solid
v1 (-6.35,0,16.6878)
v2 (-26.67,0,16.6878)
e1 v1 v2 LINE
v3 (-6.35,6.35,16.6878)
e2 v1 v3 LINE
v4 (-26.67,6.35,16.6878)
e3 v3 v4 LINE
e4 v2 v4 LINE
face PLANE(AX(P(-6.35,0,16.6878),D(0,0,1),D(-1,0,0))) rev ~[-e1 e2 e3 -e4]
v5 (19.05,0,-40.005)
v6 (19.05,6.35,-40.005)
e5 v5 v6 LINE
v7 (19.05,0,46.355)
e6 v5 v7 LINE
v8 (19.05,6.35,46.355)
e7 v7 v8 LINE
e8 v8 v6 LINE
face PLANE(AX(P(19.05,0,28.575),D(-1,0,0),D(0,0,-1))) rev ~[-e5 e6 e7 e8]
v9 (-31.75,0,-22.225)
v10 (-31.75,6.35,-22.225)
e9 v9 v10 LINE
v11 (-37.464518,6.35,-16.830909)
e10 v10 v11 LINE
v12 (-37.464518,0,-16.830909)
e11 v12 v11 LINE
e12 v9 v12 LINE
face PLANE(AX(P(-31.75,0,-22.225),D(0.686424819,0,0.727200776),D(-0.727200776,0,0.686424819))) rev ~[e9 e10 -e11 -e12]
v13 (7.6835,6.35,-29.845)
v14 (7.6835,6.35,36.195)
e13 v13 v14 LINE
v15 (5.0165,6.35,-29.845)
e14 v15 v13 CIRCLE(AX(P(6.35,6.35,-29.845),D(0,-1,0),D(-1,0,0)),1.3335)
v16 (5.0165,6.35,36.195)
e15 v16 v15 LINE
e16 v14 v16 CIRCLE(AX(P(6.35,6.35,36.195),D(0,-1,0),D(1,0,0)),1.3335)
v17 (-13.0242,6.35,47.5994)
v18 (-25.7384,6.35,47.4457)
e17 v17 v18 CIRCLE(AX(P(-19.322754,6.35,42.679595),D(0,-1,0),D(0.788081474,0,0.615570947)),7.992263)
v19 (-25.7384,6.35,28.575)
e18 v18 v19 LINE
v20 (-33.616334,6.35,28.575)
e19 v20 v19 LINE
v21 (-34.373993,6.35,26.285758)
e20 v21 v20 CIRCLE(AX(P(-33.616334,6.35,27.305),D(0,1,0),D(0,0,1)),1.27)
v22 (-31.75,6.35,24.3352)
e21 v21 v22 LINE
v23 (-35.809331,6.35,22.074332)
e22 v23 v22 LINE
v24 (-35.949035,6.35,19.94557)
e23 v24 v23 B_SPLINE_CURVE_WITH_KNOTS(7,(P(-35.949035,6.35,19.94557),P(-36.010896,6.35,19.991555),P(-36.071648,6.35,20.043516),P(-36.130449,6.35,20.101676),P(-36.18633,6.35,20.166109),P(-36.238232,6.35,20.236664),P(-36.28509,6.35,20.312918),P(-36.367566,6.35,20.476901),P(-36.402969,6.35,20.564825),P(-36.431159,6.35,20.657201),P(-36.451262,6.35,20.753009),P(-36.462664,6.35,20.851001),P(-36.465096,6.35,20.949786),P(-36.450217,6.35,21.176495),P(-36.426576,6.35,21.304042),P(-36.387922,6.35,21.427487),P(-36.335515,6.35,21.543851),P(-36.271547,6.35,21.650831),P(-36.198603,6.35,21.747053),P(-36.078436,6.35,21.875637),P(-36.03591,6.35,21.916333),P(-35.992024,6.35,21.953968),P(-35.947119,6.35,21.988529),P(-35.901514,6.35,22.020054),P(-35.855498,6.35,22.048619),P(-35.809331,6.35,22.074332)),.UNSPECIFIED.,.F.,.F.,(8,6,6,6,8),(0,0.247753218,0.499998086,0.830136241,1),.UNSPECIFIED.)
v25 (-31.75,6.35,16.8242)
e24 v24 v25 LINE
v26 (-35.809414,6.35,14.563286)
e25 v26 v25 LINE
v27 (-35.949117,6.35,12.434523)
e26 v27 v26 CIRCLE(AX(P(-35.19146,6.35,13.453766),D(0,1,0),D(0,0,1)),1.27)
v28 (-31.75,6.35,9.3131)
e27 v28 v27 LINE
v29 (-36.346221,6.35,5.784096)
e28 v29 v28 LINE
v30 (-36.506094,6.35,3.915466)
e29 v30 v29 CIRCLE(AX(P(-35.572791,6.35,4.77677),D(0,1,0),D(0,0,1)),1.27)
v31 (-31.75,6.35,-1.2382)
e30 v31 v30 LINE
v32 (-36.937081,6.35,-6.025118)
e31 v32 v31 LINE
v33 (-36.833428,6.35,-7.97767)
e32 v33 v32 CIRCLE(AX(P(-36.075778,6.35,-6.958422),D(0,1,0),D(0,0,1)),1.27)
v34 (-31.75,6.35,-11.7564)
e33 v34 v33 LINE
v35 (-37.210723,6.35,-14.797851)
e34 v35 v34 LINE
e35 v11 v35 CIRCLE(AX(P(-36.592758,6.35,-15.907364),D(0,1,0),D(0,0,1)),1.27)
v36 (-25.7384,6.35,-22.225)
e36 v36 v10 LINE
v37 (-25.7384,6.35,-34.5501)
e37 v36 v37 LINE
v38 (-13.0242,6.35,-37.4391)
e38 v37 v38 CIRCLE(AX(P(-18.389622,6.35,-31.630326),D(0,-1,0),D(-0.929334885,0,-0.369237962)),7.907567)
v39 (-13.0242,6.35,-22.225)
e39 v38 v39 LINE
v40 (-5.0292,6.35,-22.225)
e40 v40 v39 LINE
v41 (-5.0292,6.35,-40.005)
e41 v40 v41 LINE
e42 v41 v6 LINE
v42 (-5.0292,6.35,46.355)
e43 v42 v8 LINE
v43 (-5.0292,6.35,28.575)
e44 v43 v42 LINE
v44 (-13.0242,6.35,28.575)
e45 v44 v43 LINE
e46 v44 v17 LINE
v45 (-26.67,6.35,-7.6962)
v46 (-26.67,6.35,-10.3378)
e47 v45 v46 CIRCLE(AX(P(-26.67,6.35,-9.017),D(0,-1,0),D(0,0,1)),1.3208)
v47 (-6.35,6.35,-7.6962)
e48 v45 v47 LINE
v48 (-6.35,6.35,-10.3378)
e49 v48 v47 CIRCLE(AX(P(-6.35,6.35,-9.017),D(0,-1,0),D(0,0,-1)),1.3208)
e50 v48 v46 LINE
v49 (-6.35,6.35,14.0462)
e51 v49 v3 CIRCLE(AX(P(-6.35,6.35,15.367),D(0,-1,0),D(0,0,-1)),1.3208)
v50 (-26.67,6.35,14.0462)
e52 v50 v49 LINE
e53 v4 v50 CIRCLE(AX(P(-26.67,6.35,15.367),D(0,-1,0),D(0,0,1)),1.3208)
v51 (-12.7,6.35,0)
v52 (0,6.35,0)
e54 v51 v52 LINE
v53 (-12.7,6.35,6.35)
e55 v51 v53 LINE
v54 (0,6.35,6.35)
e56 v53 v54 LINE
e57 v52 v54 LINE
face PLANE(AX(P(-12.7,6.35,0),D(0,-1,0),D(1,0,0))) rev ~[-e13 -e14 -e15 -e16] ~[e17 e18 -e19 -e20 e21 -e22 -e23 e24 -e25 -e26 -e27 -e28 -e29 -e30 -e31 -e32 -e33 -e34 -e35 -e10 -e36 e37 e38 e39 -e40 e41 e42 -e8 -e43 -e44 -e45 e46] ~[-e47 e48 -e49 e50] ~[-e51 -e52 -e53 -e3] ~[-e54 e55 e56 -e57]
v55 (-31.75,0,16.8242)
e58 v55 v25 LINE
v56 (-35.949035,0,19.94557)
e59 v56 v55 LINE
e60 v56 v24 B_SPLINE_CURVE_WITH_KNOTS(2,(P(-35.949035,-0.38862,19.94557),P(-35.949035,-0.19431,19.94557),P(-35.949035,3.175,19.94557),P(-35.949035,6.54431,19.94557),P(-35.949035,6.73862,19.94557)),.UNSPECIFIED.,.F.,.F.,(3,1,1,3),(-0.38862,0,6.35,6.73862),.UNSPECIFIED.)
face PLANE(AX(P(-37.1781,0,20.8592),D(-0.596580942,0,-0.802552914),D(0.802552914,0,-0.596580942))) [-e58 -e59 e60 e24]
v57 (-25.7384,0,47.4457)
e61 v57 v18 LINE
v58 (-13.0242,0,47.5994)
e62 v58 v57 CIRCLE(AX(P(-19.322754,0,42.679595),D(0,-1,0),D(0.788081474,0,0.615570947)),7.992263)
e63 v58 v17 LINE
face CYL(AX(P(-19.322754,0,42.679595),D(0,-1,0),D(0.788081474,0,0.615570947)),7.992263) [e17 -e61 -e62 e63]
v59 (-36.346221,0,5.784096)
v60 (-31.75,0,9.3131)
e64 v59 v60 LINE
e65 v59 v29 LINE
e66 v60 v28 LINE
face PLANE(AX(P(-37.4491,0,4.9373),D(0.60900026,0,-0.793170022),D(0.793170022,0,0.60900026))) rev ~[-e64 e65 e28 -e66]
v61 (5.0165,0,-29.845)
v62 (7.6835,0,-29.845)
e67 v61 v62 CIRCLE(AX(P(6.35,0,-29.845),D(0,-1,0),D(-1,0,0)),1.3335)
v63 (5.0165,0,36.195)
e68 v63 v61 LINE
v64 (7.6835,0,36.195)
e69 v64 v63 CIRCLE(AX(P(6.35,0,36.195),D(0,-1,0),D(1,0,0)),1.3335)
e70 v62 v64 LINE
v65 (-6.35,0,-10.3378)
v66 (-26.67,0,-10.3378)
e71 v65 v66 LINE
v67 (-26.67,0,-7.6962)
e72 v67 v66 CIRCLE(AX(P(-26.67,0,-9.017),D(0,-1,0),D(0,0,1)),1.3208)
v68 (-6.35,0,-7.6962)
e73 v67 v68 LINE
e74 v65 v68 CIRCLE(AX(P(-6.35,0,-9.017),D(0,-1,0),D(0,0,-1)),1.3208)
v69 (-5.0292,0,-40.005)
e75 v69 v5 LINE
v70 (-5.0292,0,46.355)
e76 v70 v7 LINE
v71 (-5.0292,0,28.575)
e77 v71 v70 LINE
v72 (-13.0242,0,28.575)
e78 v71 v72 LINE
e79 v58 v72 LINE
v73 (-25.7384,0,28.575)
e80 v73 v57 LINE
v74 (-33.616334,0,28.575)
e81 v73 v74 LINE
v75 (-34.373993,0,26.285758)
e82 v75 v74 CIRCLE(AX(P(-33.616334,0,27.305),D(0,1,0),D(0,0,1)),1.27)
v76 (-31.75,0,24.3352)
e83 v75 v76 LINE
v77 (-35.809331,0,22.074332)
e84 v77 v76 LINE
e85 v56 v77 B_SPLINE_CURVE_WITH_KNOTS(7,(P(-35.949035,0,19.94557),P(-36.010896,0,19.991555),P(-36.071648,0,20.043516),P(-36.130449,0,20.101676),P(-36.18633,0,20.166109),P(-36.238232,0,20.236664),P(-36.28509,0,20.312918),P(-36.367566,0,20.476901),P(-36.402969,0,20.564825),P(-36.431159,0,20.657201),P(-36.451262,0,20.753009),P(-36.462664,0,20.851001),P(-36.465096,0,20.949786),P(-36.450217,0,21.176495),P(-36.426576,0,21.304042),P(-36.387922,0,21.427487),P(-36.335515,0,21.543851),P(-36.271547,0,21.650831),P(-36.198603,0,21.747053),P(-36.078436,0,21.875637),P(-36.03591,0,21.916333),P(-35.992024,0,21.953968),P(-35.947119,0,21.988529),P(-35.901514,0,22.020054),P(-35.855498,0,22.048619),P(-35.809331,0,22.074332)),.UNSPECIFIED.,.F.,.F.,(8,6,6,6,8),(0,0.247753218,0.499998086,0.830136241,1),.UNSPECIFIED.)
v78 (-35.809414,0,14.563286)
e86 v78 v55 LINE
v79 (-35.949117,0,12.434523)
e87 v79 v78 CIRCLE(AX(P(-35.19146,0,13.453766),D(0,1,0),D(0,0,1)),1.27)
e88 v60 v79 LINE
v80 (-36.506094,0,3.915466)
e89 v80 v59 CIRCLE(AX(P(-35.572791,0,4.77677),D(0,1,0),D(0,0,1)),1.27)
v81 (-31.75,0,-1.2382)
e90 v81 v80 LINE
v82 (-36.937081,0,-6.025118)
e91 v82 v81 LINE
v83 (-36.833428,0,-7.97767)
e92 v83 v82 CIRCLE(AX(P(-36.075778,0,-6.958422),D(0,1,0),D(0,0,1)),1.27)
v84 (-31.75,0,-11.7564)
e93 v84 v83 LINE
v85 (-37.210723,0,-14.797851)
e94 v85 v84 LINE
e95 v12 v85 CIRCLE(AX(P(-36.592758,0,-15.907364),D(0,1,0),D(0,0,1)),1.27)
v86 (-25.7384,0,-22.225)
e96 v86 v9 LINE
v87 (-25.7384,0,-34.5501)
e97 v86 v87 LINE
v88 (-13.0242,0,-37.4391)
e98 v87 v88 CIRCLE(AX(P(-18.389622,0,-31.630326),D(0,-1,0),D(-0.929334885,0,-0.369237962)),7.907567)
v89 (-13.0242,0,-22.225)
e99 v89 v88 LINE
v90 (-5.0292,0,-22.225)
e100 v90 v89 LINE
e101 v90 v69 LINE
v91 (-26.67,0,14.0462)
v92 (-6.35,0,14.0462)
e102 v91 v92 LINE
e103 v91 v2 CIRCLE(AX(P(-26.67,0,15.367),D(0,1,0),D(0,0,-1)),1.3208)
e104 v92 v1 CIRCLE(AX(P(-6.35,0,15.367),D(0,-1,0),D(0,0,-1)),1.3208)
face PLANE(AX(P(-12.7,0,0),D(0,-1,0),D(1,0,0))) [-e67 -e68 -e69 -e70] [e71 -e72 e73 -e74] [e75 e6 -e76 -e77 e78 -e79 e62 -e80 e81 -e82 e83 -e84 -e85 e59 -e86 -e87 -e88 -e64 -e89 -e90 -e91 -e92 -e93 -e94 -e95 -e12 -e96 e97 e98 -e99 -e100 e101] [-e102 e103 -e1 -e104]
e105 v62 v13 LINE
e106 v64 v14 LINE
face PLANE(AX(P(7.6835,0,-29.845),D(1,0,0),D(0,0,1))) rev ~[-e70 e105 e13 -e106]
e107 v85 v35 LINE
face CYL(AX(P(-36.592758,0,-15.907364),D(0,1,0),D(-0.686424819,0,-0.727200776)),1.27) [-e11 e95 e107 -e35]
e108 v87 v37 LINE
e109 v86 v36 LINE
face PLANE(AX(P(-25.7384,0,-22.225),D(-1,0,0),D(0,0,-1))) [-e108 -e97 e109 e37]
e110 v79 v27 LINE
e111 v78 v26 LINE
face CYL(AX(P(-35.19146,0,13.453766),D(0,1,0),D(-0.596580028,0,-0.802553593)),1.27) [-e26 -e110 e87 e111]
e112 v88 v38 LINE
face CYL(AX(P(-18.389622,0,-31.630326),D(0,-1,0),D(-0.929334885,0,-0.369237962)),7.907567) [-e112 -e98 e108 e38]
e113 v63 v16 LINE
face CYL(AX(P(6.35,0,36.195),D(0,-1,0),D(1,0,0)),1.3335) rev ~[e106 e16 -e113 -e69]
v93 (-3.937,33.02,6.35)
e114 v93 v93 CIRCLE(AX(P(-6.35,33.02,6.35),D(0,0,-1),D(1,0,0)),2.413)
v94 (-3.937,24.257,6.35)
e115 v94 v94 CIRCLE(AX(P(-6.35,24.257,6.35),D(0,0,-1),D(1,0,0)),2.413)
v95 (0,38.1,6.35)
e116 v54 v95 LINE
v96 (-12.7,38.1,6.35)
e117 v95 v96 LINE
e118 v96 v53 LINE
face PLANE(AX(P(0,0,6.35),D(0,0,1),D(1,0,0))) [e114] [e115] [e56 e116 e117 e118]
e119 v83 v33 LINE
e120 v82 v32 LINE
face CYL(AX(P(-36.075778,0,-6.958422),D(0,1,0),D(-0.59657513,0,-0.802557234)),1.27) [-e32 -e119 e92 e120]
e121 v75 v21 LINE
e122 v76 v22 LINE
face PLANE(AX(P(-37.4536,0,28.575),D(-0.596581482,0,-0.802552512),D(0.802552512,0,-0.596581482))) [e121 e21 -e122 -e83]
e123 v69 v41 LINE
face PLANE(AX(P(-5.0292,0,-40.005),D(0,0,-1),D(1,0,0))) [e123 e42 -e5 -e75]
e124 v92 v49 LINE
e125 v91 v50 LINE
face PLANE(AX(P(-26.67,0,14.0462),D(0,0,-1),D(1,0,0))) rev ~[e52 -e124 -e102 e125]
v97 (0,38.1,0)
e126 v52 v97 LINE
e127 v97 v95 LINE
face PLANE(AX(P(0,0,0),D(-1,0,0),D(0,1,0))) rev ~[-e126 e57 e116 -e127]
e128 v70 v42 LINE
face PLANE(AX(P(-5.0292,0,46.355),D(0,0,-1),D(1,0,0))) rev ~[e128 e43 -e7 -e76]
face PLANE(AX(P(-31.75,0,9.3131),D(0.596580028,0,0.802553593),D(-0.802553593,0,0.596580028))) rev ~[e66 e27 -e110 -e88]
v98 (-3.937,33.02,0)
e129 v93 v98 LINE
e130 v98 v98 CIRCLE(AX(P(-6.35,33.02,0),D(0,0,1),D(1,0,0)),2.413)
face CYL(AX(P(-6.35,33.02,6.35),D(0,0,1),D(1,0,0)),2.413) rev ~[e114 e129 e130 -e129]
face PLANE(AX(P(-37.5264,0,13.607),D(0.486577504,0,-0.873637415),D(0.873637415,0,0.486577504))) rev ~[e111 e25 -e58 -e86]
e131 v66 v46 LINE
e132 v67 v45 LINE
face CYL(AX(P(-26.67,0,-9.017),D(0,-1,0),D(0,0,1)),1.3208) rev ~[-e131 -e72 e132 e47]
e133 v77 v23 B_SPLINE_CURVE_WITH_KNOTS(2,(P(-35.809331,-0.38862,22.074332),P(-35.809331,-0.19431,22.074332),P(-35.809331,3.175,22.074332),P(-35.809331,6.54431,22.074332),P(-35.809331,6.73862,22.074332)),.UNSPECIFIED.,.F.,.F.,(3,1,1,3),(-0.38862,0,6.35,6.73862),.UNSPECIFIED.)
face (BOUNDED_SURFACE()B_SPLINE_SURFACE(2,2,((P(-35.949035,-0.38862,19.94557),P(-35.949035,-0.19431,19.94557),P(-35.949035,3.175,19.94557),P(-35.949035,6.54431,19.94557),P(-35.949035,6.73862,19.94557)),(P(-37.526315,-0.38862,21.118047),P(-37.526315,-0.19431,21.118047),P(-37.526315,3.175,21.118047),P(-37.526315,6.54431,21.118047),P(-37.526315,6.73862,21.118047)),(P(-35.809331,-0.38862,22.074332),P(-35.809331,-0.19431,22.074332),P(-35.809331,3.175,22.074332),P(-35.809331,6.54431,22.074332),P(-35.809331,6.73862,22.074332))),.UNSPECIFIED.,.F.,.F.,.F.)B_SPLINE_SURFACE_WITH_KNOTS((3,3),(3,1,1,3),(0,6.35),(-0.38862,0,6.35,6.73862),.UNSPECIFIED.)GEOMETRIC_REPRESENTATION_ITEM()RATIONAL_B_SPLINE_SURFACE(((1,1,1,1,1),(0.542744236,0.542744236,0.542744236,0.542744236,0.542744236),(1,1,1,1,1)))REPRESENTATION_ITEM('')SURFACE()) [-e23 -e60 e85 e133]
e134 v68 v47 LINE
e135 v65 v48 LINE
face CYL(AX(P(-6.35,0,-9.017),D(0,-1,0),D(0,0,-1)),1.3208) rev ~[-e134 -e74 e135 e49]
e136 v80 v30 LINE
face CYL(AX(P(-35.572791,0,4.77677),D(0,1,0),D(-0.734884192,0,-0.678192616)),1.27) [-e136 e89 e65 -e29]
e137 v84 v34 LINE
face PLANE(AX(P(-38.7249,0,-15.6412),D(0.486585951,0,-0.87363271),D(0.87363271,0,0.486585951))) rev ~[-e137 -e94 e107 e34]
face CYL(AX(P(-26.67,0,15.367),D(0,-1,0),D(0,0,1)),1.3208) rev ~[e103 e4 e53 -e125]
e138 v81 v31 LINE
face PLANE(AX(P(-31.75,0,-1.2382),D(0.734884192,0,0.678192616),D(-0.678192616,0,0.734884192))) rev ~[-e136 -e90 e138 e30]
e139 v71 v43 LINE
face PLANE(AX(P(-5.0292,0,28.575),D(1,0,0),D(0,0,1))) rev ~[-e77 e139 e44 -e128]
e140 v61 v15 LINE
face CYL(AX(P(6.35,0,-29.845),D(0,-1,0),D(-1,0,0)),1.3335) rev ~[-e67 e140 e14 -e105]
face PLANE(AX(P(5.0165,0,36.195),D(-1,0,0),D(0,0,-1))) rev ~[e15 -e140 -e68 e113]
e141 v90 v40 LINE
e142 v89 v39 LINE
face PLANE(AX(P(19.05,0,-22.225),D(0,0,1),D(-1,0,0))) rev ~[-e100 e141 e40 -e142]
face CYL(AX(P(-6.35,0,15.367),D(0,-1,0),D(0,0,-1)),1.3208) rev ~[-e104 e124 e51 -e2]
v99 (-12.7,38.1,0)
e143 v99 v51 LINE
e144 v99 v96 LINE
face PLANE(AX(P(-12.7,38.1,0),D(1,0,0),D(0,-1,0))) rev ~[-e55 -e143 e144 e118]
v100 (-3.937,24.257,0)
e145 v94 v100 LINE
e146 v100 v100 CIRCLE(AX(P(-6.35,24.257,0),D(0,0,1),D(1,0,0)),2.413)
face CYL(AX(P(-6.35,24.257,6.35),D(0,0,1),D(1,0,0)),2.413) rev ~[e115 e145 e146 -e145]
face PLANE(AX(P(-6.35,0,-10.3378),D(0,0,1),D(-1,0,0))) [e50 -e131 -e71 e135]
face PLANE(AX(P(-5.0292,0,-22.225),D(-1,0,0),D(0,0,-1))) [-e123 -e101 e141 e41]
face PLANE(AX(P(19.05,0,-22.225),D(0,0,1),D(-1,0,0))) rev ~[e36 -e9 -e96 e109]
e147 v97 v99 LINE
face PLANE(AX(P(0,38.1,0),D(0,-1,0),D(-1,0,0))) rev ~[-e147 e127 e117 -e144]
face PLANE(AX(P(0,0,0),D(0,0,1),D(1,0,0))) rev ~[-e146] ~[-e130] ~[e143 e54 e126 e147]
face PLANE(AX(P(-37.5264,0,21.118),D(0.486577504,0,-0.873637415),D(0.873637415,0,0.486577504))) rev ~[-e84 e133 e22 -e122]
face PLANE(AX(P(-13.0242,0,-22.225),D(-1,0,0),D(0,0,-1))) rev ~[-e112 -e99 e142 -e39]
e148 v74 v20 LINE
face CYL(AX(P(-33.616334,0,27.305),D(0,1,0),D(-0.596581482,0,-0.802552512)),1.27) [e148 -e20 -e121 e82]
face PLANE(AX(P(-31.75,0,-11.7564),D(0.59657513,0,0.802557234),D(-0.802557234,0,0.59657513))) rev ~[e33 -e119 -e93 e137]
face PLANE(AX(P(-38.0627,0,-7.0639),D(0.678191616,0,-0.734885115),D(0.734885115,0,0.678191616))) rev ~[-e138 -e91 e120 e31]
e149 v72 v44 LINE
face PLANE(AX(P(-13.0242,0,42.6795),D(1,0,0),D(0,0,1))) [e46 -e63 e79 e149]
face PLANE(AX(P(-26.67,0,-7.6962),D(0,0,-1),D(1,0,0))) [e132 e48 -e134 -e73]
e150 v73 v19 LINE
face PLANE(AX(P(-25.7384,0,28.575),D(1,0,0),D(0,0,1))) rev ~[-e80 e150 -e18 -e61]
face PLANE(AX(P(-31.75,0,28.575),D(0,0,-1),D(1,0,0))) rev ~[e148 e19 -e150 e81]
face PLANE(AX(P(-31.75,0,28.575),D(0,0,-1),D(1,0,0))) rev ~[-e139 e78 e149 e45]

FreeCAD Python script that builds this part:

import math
import FreeCAD as App
import Part
import Sketcher
Q = App.Units.Quantity


def edges_at(feature, points):
    """Names of the edges that pass closest to the given points."""
    edges = feature.Shape.Edges
    near = lambda p: min(range(len(edges)), key=lambda i: edges[i].distToShape(Part.Vertex(*p))[0])
    return sorted({f"Edge{near(p) + 1}" for p in points})

doc = App.newDocument("Part")
body = doc.addObject("PartDesign::Body", "Body")

# Sketch on XY plane
sketch1 = doc.addObject("Sketcher::SketchObject", "Sketch")
body.addObject(sketch1)
sketch1.AttachmentSupport = (doc.XY_Plane, [""])
sketch1.MapMode = "FlatFace"
sketch1.addGeometry([
    Part.LineSegment(App.Vector(-13, 0, 0), App.Vector(0, 0, 0)),
    Part.LineSegment(App.Vector(0, 0, 0), App.Vector(0, 38, 0)),
    Part.LineSegment(App.Vector(0, 38, 0), App.Vector(-13, 38, 0)),
    Part.LineSegment(App.Vector(-13, 38, 0), App.Vector(-13, 0, 0)),
], False)
sketch1.addConstraint([
    Sketcher.Constraint("Coincident", 0, 2, 1, 1),
    Sketcher.Constraint("Coincident", 1, 2, 2, 1),
    Sketcher.Constraint("Coincident", 2, 2, 3, 1),
    Sketcher.Constraint("Coincident", 3, 2, 0, 1),
    Sketcher.Constraint("Horizontal", 0),
    Sketcher.Constraint("Vertical", 1),
    Sketcher.Constraint("Horizontal", 2),
    Sketcher.Constraint("Vertical", 3),
    Sketcher.Constraint("Coincident", 0, 2, -1, 1),
    Sketcher.Constraint("DistanceX", 0, 1, 0, 2, Q("0.5 in")),
    Sketcher.Constraint("DistanceY", 1, 1, 1, 2, Q("1.5 in")),
])
pad1 = doc.addObject("PartDesign::Pad", "Pad")
body.addObject(pad1)
pad1.Profile = sketch1
pad1.Length = Q("0.25 in")

# Sketch on XY plane
sketch2 = doc.addObject("Sketcher::SketchObject", "Sketch001")
body.addObject(sketch2)
sketch2.AttachmentSupport = (doc.XY_Plane, [""])
sketch2.MapMode = "FlatFace"
sketch2.AttachmentOffset = App.Placement(App.Vector(0, 0, 0.25 * 25.4), App.Rotation())
sketch2.addGeometry([
    Part.Circle(App.Vector(-6.3, 24.3, 0), App.Vector(0, 0, 1), 2.4),
    Part.Circle(App.Vector(-6.3, 33, 0), App.Vector(0, 0, 1), 2.4),
], False)
sketch2.addConstraint([
    Sketcher.Constraint("Equal", 0, 1),
    Sketcher.Constraint("Vertical", 0, 3, 1, 3),
    Sketcher.Constraint("Diameter", 0, Q("0.19 in")),
    Sketcher.Constraint("DistanceY", 0, 3, 1, 3, Q("0.345 in")),
    Sketcher.Constraint("DistanceY", -1, 1, 1, 3, Q("1.3 in")),
    Sketcher.Constraint("DistanceX", 0, 3, -1, 1, Q("0.25 in")),
])
pocket1 = doc.addObject("PartDesign::Pocket", "Pocket")
body.addObject(pocket1)
pocket1.Profile = sketch2
pocket1.Type = "UpToFirst"

# Sketch on XZ plane
sketch3 = doc.addObject("Sketcher::SketchObject", "Sketch002")
body.addObject(sketch3)
sketch3.AttachmentSupport = (doc.XZ_Plane, [""])
sketch3.MapMode = "FlatFace"
sketch3.addGeometry([
    Part.LineSegment(App.Vector(-32, 29, 0), App.Vector(-32, -22, 0)),  # 0
    Part.LineSegment(App.Vector(-32, -22, 0), App.Vector(19, -22, 0)),  # 1
    Part.LineSegment(App.Vector(19, -22, 0), App.Vector(19, 29, 0)),  # 2
    Part.LineSegment(App.Vector(19, 29, 0), App.Vector(-32, 29, 0)),  # 3
    Part.LineSegment(App.Vector(0, 0, 0), App.Vector(-13, 0, 0)),  # 4
    Part.LineSegment(App.Vector(-13, 0, 0), App.Vector(-13, 6, 0)),  # 5
    Part.LineSegment(App.Vector(-13, 6, 0), App.Vector(0, 6, 0)),  # 6
    Part.LineSegment(App.Vector(0, 6, 0), App.Vector(0, 0, 0)),  # 7
], False)
sketch3.addConstraint([
    Sketcher.Constraint("Coincident", 0, 2, 1, 1),
    Sketcher.Constraint("Coincident", 1, 2, 2, 1),
    Sketcher.Constraint("Coincident", 2, 2, 3, 1),
    Sketcher.Constraint("Coincident", 3, 2, 0, 1),
    Sketcher.Constraint("Coincident", 4, 2, 5, 1),
    Sketcher.Constraint("Coincident", 5, 2, 6, 1),
    Sketcher.Constraint("Coincident", 6, 2, 7, 1),
    Sketcher.Constraint("Coincident", 7, 2, 4, 1),
    Sketcher.Constraint("Vertical", 0),
    Sketcher.Constraint("Horizontal", 1),
    Sketcher.Constraint("Vertical", 2),
    Sketcher.Constraint("Horizontal", 3),
    Sketcher.Constraint("Horizontal", 4),
    Sketcher.Constraint("Vertical", 5),
    Sketcher.Constraint("Horizontal", 6),
    Sketcher.Constraint("Vertical", 7),
    Sketcher.Constraint("Coincident", 7, 2, -1, 1),
    Sketcher.Constraint("Equal", 3, 0),
    Sketcher.Constraint("DistanceX", 1, 1, 1, 2, Q("2 in")),
    Sketcher.Constraint("DistanceX", 4, 2, 4, 1, Q("0.5 in")),
    Sketcher.Constraint("DistanceY", 5, 1, 5, 2, Q("0.25 in")),
    Sketcher.Constraint("DistanceX", 0, 2, -1, 1, Q("1.25 in")),
    Sketcher.Constraint("DistanceY", 0, 2, -1, 1, Q("0.875 in")),
])
pad2 = doc.addObject("PartDesign::Pad", "Pad001")
body.addObject(pad2)
pad2.Profile = sketch3
pad2.Length = Q("0.25 in")
pad2.Reversed = True

# Sketch on XZ plane
sketch4 = doc.addObject("Sketcher::SketchObject", "Sketch003")
body.addObject(sketch4)
sketch4.AttachmentSupport = (doc.XZ_Plane, [""])
sketch4.MapMode = "FlatFace"
sketch4.addGeometry([
    Part.ArcOfCircle(Part.Circle(App.Vector(-26.7, 15.4, 0), App.Vector(0, 0, 1), 1.3), math.radians(90), math.radians(270)),  # 0
    Part.LineSegment(App.Vector(-26.7, 14, 0), App.Vector(-6.3, 14, 0)),  # 1
    Part.ArcOfCircle(Part.Circle(App.Vector(-6.3, 15.4, 0), App.Vector(0, 0, 1), 1.3), math.radians(-90), math.radians(90)),  # 2
    Part.LineSegment(App.Vector(-6.3, 16.7, 0), App.Vector(-26.7, 16.7, 0)),  # 3
    Part.LineSegment(App.Vector(-6.3, -7.7, 0), App.Vector(-26.7, -7.7, 0)),  # 4
    Part.ArcOfCircle(Part.Circle(App.Vector(-26.7, -9, 0), App.Vector(0, 0, 1), 1.3), math.radians(90), math.radians(270)),  # 5
    Part.LineSegment(App.Vector(-26.7, -10.3, 0), App.Vector(-6.3, -10.3, 0)),  # 6
    Part.ArcOfCircle(Part.Circle(App.Vector(-6.3, -9, 0), App.Vector(0, 0, 1), 1.3), math.radians(-90), math.radians(90)),  # 7
], False)
sketch4.addConstraint([
    Sketcher.Constraint("Tangent", 0, 2, 1, 1),
    Sketcher.Constraint("Tangent", 1, 2, 2, 1),
    Sketcher.Constraint("Tangent", 2, 2, 3, 1),
    Sketcher.Constraint("Tangent", 3, 2, 0, 1),
    Sketcher.Constraint("Tangent", 4, 2, 5, 1),
    Sketcher.Constraint("Tangent", 5, 2, 6, 1),
    Sketcher.Constraint("Tangent", 6, 2, 7, 1),
    Sketcher.Constraint("Tangent", 7, 2, 4, 1),
    Sketcher.Constraint("Horizontal", 1),
    Sketcher.Constraint("Horizontal", 3),
    Sketcher.Constraint("Horizontal", 4),
    Sketcher.Constraint("Horizontal", 6),
    Sketcher.Constraint("Equal", 2, 5),
    Sketcher.Constraint("Vertical", 0, 3, 5, 3),
    Sketcher.Constraint("Vertical", 2, 3, 7, 3),
    Sketcher.Constraint("DistanceX", 1, 1, 1, 2, Q("0.8 in")),
    Sketcher.Constraint("Radius", 0, Q("0.052 in")),
    Sketcher.Constraint("DistanceX", 0, 3, -1, 1, Q("1.05 in")),
    Sketcher.Constraint("DistanceY", 5, 3, 0, 3, Q("0.96 in")),
    Sketcher.Constraint("DistanceY", -1, 1, 0, 3, Q("0.605 in")),
])
pocket2 = doc.addObject("PartDesign::Pocket", "Pocket001")
body.addObject(pocket2)
pocket2.Profile = sketch4
pocket2.Length = Q("0.25 in")

# Sketch on XZ plane
sketch5 = doc.addObject("Sketcher::SketchObject", "Sketch004")
body.addObject(sketch5)
sketch5.AttachmentSupport = (doc.XZ_Plane, [""])
sketch5.MapMode = "FlatFace"
sketch5.addGeometry([
    Part.LineSegment(App.Vector(-5, 46, 0), App.Vector(-5, 29, 0)),  # 0
    Part.LineSegment(App.Vector(-5, 29, 0), App.Vector(19, 29, 0)),  # 1
    Part.LineSegment(App.Vector(19, 29, 0), App.Vector(19, 46, 0)),  # 2
    Part.LineSegment(App.Vector(19, 46, 0), App.Vector(-5, 46, 0)),  # 3
    Part.LineSegment(App.Vector(19, -22, 0), App.Vector(-5, -22, 0)),  # 4
    Part.LineSegment(App.Vector(-5, -22, 0), App.Vector(-5, -40, 0)),  # 5
    Part.LineSegment(App.Vector(-5, -40, 0), App.Vector(19, -40, 0)),  # 6
    Part.LineSegment(App.Vector(19, -40, 0), App.Vector(19, -22, 0)),  # 7
], False)
sketch5.addConstraint([
    Sketcher.Constraint("Coincident", 0, 2, 1, 1),
    Sketcher.Constraint("Coincident", 1, 2, 2, 1),
    Sketcher.Constraint("Coincident", 2, 2, 3, 1),
    Sketcher.Constraint("Coincident", 3, 2, 0, 1),
    Sketcher.Constraint("Coincident", 4, 2, 5, 1),
    Sketcher.Constraint("Coincident", 5, 2, 6, 1),
    Sketcher.Constraint("Coincident", 6, 2, 7, 1),
    Sketcher.Constraint("Coincident", 7, 2, 4, 1),
    Sketcher.Constraint("Vertical", 0),
    Sketcher.Constraint("Horizontal", 1),
    Sketcher.Constraint("Vertical", 2),
    Sketcher.Constraint("Horizontal", 3),
    Sketcher.Constraint("Horizontal", 4),
    Sketcher.Constraint("Vertical", 5),
    Sketcher.Constraint("Horizontal", 6),
    Sketcher.Constraint("Vertical", 7),
    Sketcher.Constraint("Vertical", 3, 2, 4, 2),
    Sketcher.Constraint("Vertical", 2, 2, 6, 2),
    Sketcher.Constraint("Equal", 2, 5),
    Sketcher.Constraint("DistanceY", 0, 2, 0, 1, Q("0.7 in")),
    Sketcher.Constraint("DistanceY", 4, 2, 0, 2, Q("2 in")),
    Sketcher.Constraint("DistanceX", 1, 1, 1, 2, Q("0.948 in")),
    Sketcher.Constraint("DistanceX", -1, 1, 1, 2, Q("0.75 in")),
    Sketcher.Constraint("DistanceY", -1, 1, 0, 2, Q("1.125 in")),
])
pad3 = doc.addObject("PartDesign::Pad", "Pad002")
body.addObject(pad3)
pad3.Profile = sketch5
pad3.Length = Q("0.25 in")
pad3.Reversed = True

# Sketch on XZ plane
sketch6 = doc.addObject("Sketcher::SketchObject", "Sketch005")
body.addObject(sketch6)
sketch6.AttachmentSupport = (doc.XZ_Plane, [""])
sketch6.MapMode = "FlatFace"
sketch6.addGeometry([
    Part.ArcOfCircle(Part.Circle(App.Vector(6.3, -29.8, 0), App.Vector(0, 0, 1), 1.3), math.radians(180), math.radians(360)),
    Part.LineSegment(App.Vector(7.7, -29.8, 0), App.Vector(7.7, 36.2, 0)),
    Part.ArcOfCircle(Part.Circle(App.Vector(6.3, 36.2, 0), App.Vector(0, 0, 1), 1.3), math.radians(0), math.radians(180)),
    Part.LineSegment(App.Vector(5, 36.2, 0), App.Vector(5, -29.8, 0)),
], False)
sketch6.addConstraint([
    Sketcher.Constraint("Tangent", 0, 2, 1, 1),
    Sketcher.Constraint("Tangent", 1, 2, 2, 1),
    Sketcher.Constraint("Tangent", 2, 2, 3, 1),
    Sketcher.Constraint("Tangent", 3, 2, 0, 1),
    Sketcher.Constraint("Vertical", 1),
    Sketcher.Constraint("Vertical", 3),
    Sketcher.Constraint("Radius", 0, Q("0.0525 in")),
    Sketcher.Constraint("DistanceY", 1, 1, 1, 2, Q("2.6 in")),
    Sketcher.Constraint("DistanceX", -1, 1, 0, 3, Q("0.25 in")),
    Sketcher.Constraint("DistanceY", 0, 3, -1, 1, Q("1.175 in")),
])
pocket3 = doc.addObject("PartDesign::Pocket", "Pocket002")
body.addObject(pocket3)
pocket3.Profile = sketch6
pocket3.Length = Q("0.25 in")

# Sketch on XZ plane
sketch7 = doc.addObject("Sketcher::SketchObject", "Sketch006")
body.addObject(sketch7)
sketch7.AttachmentSupport = (doc.XZ_Plane, [""])
sketch7.MapMode = "FlatFace"
sketch7.addGeometry([
    Part.LineSegment(App.Vector(-38.7249, -15.6412, 0), App.Vector(-31.75, -22.225, 0)),  # 0
    Part.LineSegment(App.Vector(-31.75, -22.225, 0), App.Vector(-31.75, -11.7564, 0)),  # 1
    Part.LineSegment(App.Vector(-31.75, -11.7564, 0), App.Vector(-38.7249, -15.6412, 0)),  # 2
    Part.LineSegment(App.Vector(-37.4536, 28.575, 0), App.Vector(-31.75, 24.3352, 0)),  # 3
    Part.LineSegment(App.Vector(-31.75, 24.3352, 0), App.Vector(-31.75, 28.575, 0)),  # 4
    Part.LineSegment(App.Vector(-31.75, 28.575, 0), App.Vector(-37.4536, 28.575, 0)),  # 5
    Part.LineSegment(App.Vector(-37.1781, 20.8592, 0), App.Vector(-31.75, 16.8242, 0)),  # 6
    Part.LineSegment(App.Vector(-31.75, 16.8242, 0), App.Vector(-31.75, 24.3352, 0)),  # 7
    Part.LineSegment(App.Vector(-31.75, 24.3352, 0), App.Vector(-37.5264, 21.118, 0)),  # 8
    Part.LineSegment(App.Vector(-37.5264, 21.118, 0), App.Vector(-37.17815, 20.859133, 0)),  # 9
    Part.LineSegment(App.Vector(-37.5264, 13.607, 0), App.Vector(-31.75, 9.3131, 0)),  # 10
    Part.LineSegment(App.Vector(-31.75, 9.3131, 0), App.Vector(-31.75, 16.8242, 0)),  # 11
    Part.LineSegment(App.Vector(-31.75, 16.8242, 0), App.Vector(-37.5264, 13.607, 0)),  # 12
    Part.LineSegment(App.Vector(-37.4491, 4.9373, 0), App.Vector(-31.75, -1.2382, 0)),  # 13
    Part.LineSegment(App.Vector(-31.75, -1.2382, 0), App.Vector(-31.75, 9.3131, 0)),  # 14
    Part.LineSegment(App.Vector(-31.75, 9.3131, 0), App.Vector(-37.4491, 4.9373, 0)),  # 15
    Part.LineSegment(App.Vector(-38.0627, -7.0639, 0), App.Vector(-31.75, -11.7564, 0)),  # 16
    Part.LineSegment(App.Vector(-31.75, -11.7564, 0), App.Vector(-31.75, -1.2382, 0)),  # 17
    Part.LineSegment(App.Vector(-31.75, -1.2382, 0), App.Vector(-38.0627, -7.0639, 0)),  # 18
], False)
sketch7.addConstraint([
    Sketcher.Constraint("Coincident", 0, 2, 1, 1),
    Sketcher.Constraint("Coincident", 1, 2, 2, 1),
    Sketcher.Constraint("Coincident", 2, 2, 0, 1),
    Sketcher.Constraint("Coincident", 3, 2, 4, 1),
    Sketcher.Constraint("Coincident", 4, 2, 5, 1),
    Sketcher.Constraint("Coincident", 5, 2, 3, 1),
    Sketcher.Constraint("Coincident", 6, 2, 7, 1),
    Sketcher.Constraint("Coincident", 7, 2, 8, 1),
    Sketcher.Constraint("Coincident", 8, 2, 9, 1),
    Sketcher.Constraint("Coincident", 9, 2, 6, 1),
    Sketcher.Constraint("Coincident", 10, 2, 11, 1),
    Sketcher.Constraint("Coincident", 11, 2, 12, 1),
    Sketcher.Constraint("Coincident", 12, 2, 10, 1),
    Sketcher.Constraint("Coincident", 13, 2, 14, 1),
    Sketcher.Constraint("Coincident", 14, 2, 15, 1),
    Sketcher.Constraint("Coincident", 15, 2, 13, 1),
    Sketcher.Constraint("Coincident", 16, 2, 17, 1),
    Sketcher.Constraint("Coincident", 17, 2, 18, 1),
    Sketcher.Constraint("Coincident", 18, 2, 16, 1),
    Sketcher.Constraint("Vertical", 1),
    Sketcher.Constraint("Vertical", 4),
    Sketcher.Constraint("Horizontal", 5),
    Sketcher.Constraint("Vertical", 7),
    Sketcher.Constraint("Vertical", 11),
    Sketcher.Constraint("Vertical", 14),
    Sketcher.Constraint("Vertical", 17),
    Sketcher.Constraint("Coincident", 7, 2, 3, 2),
    Sketcher.Constraint("Coincident", 11, 2, 6, 2),
    Sketcher.Constraint("Coincident", 14, 2, 10, 2),
    Sketcher.Constraint("Coincident", 16, 2, 1, 2),
    Sketcher.Constraint("Coincident", 17, 2, 13, 2),
    Sketcher.Constraint("DistanceY", 0, 2, 4, 2, Q("2 in")),
    Sketcher.Constraint("DistanceX", 0, 2, -1, 1, Q("1.25 in")),
    Sketcher.Constraint("DistanceY", 7, 1, 7, 2, Q("0.2957 in")),
    Sketcher.Constraint("DistanceY", 14, 1, 14, 2, Q("0.4154 in")),
    Sketcher.Constraint("DistanceY", 17, 1, 17, 2, Q("0.4141 in")),
    Sketcher.Constraint("DistanceY", 0, 2, -1, 1, Q("0.875 in")),
    Sketcher.Constraint("DistanceY", 15, 2, 6, 2, Q("0.468 in")),
    Sketcher.Constraint("Distance", 3, Q("0.2798 in")),
    Sketcher.Constraint("Distance", 8, Q("0.2603 in")),
    Sketcher.Constraint("Distance", 12, Q("0.2603 in")),
    Sketcher.Constraint("Distance", 18, Q("0.3382 in")),
    Sketcher.Constraint("DistanceX", 5, 2, 5, 1, 5.7036),
    Sketcher.Constraint("DistanceY", 1, 1, 1, 2, 10.4686),
    Sketcher.Constraint("DistanceX", 2, 2, -1, 1, Q("1.5246 in")),
    Sketcher.Constraint("DistanceY", 2, 2, -1, 1, Q("0.6158 in")),
    Sketcher.Constraint("DistanceX", 9, 2, -1, 1, Q("1.4637 in")),
    Sketcher.Constraint("DistanceY", -1, 1, 12, 2, Q("0.5357 in")),
    Sketcher.Constraint("DistanceY", 18, 2, -1, 1, Q("0.2781 in")),
    Sketcher.Constraint("DistanceX", 8, 2, 9, 2, Q("0.0137 in")),
    Sketcher.Constraint("DistanceY", 9, 2, 8, 2, Q("0.0102 in")),
    Sketcher.Constraint("Distance", 13, 8.4034),
])
pad4 = doc.addObject("PartDesign::Pad", "Pad003")
body.addObject(pad4)
pad4.Profile = sketch7
pad4.Length = Q("0.25 in")
pad4.Reversed = True
doc.recompute()

fillet = doc.addObject("PartDesign::Fillet", "Fillet")
body.addObject(fillet)
fillet.Base = (pad4, edges_at(pad4, [(-38.725, 3.175, -15.641)]))
fillet.Radius = Q("0.05 in")
doc.recompute()

fillet2 = doc.addObject("PartDesign::Fillet", "Fillet001")
body.addObject(fillet2)
fillet2.Base = (fillet, edges_at(fillet, [(-38.063, 3.175, -7.064)]))
fillet2.Radius = Q("0.05 in")
doc.recompute()

fillet3 = doc.addObject("PartDesign::Fillet", "Fillet002")
body.addObject(fillet3)
fillet3.Base = (fillet2, edges_at(fillet2, [
    (-37.449, 3.175, 4.937),
    (-37.526, 3.175, 13.607),
    (-37.526, 3.175, 21.118),
    (-37.454, 3.175, 28.575),
]))
fillet3.Radius = Q("0.05 in")

# Sketch on XZ plane
sketch8 = doc.addObject("Sketcher::SketchObject", "Sketch007")
body.addObject(sketch8)
sketch8.AttachmentSupport = (doc.XZ_Plane, [""])
sketch8.MapMode = "FlatFace"
sketch8.addGeometry([
    Part.LineSegment(App.Vector(-13, -22, 0), App.Vector(-26, -22, 0)),  # 0
    Part.LineSegment(App.Vector(-26, -22, 0), App.Vector(-26, -35, 0)),  # 1
    Part.ArcOfCircle(Part.Circle(App.Vector(-18, -32, 0), App.Vector(0, 0, 1), 8), math.radians(-158), math.radians(-47)),  # 2
    Part.LineSegment(App.Vector(-13, -37, 0), App.Vector(-13, -22, 0)),  # 3
    Part.LineSegment(App.Vector(-26, 47, 0), App.Vector(-26, 29, 0)),  # 4
    Part.LineSegment(App.Vector(-26, 29, 0), App.Vector(-13, 29, 0)),  # 5
    Part.LineSegment(App.Vector(-13, 29, 0), App.Vector(-13, 48, 0)),  # 6
    Part.ArcOfCircle(Part.Circle(App.Vector(-19, 43, 0), App.Vector(0, 0, 1), 8), math.radians(38), math.radians(143)),  # 7
], False)
sketch8.addConstraint([
    Sketcher.Constraint("Coincident", 0, 2, 1, 1),
    Sketcher.Constraint("Coincident", 1, 2, 2, 1),
    Sketcher.Constraint("Coincident", 2, 2, 3, 1),
    Sketcher.Constraint("Coincident", 3, 2, 0, 1),
    Sketcher.Constraint("Coincident", 4, 2, 5, 1),
    Sketcher.Constraint("Coincident", 5, 2, 6, 1),
    Sketcher.Constraint("Coincident", 6, 2, 7, 1),
    Sketcher.Constraint("Coincident", 7, 2, 4, 1),
    Sketcher.Constraint("Horizontal", 0),
    Sketcher.Constraint("Vertical", 1),
    Sketcher.Constraint("Vertical", 3),
    Sketcher.Constraint("Vertical", 4),
    Sketcher.Constraint("Horizontal", 5),
    Sketcher.Constraint("Vertical", 6),
    Sketcher.Constraint("Vertical", 1, 2, 4, 2),
    Sketcher.Constraint("Vertical", 3, 2, 5, 2),
    Sketcher.Constraint("DistanceY", 0, 2, 4, 2, Q("2 in")),
    Sketcher.Constraint("DistanceY", 6, 1, 6, 2, Q("0.749 in")),
    Sketcher.Constraint("Radius", 2, 7.9076),
    Sketcher.Constraint("Radius", 7, 7.9924),
    Sketcher.Constraint("DistanceX", 2, 3, -1, 1, Q("0.724 in")),
    Sketcher.Constraint("DistanceY", 0, 2, -1, 1, Q("0.875 in")),
    Sketcher.Constraint("DistanceX", 0, 2, 0, 1, 12.7142),
    Sketcher.Constraint("DistanceY", 1, 2, 1, 1, 12.325),
    Sketcher.Constraint("DistanceY", 3, 1, 3, 2, 15.214),
    Sketcher.Constraint("DistanceY", 4, 2, 4, 1, 18.8707),
])
pad5 = doc.addObject("PartDesign::Pad", "Pad004")
body.addObject(pad5)
pad5.Profile = sketch8
pad5.Length = Q("0.25 in")
pad5.Reversed = True

doc.recompute()
